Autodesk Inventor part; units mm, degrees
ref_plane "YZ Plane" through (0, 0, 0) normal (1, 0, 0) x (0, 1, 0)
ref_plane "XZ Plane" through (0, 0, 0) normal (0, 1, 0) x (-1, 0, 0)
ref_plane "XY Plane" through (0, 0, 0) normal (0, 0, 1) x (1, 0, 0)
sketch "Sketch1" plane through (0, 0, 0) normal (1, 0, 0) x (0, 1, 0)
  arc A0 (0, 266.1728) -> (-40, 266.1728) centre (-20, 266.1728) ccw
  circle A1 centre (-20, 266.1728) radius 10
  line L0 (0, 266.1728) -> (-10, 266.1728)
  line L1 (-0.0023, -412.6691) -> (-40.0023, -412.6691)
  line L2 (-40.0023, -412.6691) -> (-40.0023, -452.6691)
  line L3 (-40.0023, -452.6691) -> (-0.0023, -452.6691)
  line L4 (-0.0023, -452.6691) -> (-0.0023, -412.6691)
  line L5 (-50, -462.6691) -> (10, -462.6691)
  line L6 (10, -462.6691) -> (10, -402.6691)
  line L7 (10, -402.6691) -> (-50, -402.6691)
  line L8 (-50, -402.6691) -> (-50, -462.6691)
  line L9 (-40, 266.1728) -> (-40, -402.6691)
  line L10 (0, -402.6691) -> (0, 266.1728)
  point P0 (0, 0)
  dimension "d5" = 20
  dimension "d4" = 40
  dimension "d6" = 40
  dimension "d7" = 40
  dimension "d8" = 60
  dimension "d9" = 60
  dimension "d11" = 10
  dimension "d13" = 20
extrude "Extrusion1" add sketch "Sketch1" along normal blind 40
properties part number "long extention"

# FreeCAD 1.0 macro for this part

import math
import FreeCAD as App
import Part
import Sketcher
from FreeCAD import Vector

doc = App.newDocument("Part")
body = doc.addObject("PartDesign::Body", "Body")

# Sketch on YZ plane
sketch1 = body.newObject("Sketcher::SketchObject", "Sketch")
sketch1.AttachmentSupport = (doc.getObject("YZ_Plane"), [""])
sketch1.MapMode = "FlatFace"
sketch1.addGeometry(Part.LineSegment(Vector(0, -403, 0), Vector(0, 266, 0)), False)
sketch1.addGeometry(Part.ArcOfCircle(Part.Circle(Vector(-20, 266, 0), Vector(0, 0, 1), 20), math.radians(0), math.radians(180)), False)
sketch1.addGeometry(Part.LineSegment(Vector(-40, 266, 0), Vector(-40, -403, 0)), False)
sketch1.addGeometry(Part.LineSegment(Vector(-40, -403, 0), Vector(-50, -403, 0)), False)
sketch1.addGeometry(Part.LineSegment(Vector(-50, -403, 0), Vector(-50, -463, 0)), False)
sketch1.addGeometry(Part.LineSegment(Vector(-50, -463, 0), Vector(10, -463, 0)), False)
sketch1.addGeometry(Part.LineSegment(Vector(10, -463, 0), Vector(10, -403, 0)), False)
sketch1.addGeometry(Part.LineSegment(Vector(10, -403, 0), Vector(0, -403, 0)), False)
sketch1.addGeometry(Part.Circle(Vector(-20, 266, 0), Vector(0, 0, 1), 10), False)
sketch1.addGeometry(Part.LineSegment(Vector(0, -413, 0), Vector(0, -453, 0)), False)
sketch1.addGeometry(Part.LineSegment(Vector(0, -453, 0), Vector(-40, -453, 0)), False)
sketch1.addGeometry(Part.LineSegment(Vector(-40, -453, 0), Vector(-40, -413, 0)), False)
sketch1.addGeometry(Part.LineSegment(Vector(-40, -413, 0), Vector(0, -413, 0)), False)
sketch1.addConstraint(Sketcher.Constraint("Tangent", 0, 2, 1, 1))
sketch1.addConstraint(Sketcher.Constraint("Tangent", 1, 2, 2, 1))
sketch1.addConstraint(Sketcher.Constraint("Coincident", 2, 2, 3, 1))
sketch1.addConstraint(Sketcher.Constraint("Coincident", 3, 2, 4, 1))
sketch1.addConstraint(Sketcher.Constraint("Coincident", 4, 2, 5, 1))
sketch1.addConstraint(Sketcher.Constraint("Coincident", 5, 2, 6, 1))
sketch1.addConstraint(Sketcher.Constraint("Coincident", 6, 2, 7, 1))
sketch1.addConstraint(Sketcher.Constraint("Coincident", 7, 2, 0, 1))
sketch1.addConstraint(Sketcher.Constraint("Coincident", 9, 2, 10, 1))
sketch1.addConstraint(Sketcher.Constraint("Coincident", 10, 2, 11, 1))
sketch1.addConstraint(Sketcher.Constraint("Coincident", 11, 2, 12, 1))
sketch1.addConstraint(Sketcher.Constraint("Coincident", 12, 2, 9, 1))
sketch1.addConstraint(Sketcher.Constraint("Vertical", 0))
sketch1.addConstraint(Sketcher.Constraint("Vertical", 2))
sketch1.addConstraint(Sketcher.Constraint("Horizontal", 3))
sketch1.addConstraint(Sketcher.Constraint("Vertical", 4))
sketch1.addConstraint(Sketcher.Constraint("Horizontal", 5))
sketch1.addConstraint(Sketcher.Constraint("Vertical", 6))
sketch1.addConstraint(Sketcher.Constraint("Horizontal", 7))
sketch1.addConstraint(Sketcher.Constraint("Vertical", 9))
sketch1.addConstraint(Sketcher.Constraint("Horizontal", 10))
sketch1.addConstraint(Sketcher.Constraint("Vertical", 11))
sketch1.addConstraint(Sketcher.Constraint("Horizontal", 12))
sketch1.addConstraint(Sketcher.Constraint("Coincident", 8, 3, 1, 3))
sketch1.addConstraint(Sketcher.Constraint("PointOnObject", 0, 2, -2))
sketch1.addConstraint(Sketcher.Constraint("Horizontal", 3, 2, 6, 2))
sketch1.addConstraint(Sketcher.Constraint("Equal", 3, 7))
sketch1.addConstraint(Sketcher.Constraint("Equal", 5, 4))
sketch1.addConstraint(Sketcher.Constraint("Equal", 12, 9))
sketch1.addConstraint(Sketcher.Constraint("Diameter", 8, 20.0))
sketch1.addConstraint(Sketcher.Constraint("Radius", 1, 20.0))
sketch1.addConstraint(Sketcher.Constraint("DistanceX", 3, 2, 3, 1, 10.0))
sketch1.addConstraint(Sketcher.Constraint("DistanceX", 10, 2, 10, 1, 40.0))
sketch1.addConstraint(Sketcher.Constraint("DistanceY", 5, 2, 9, 2, 10.0))
sketch1.addConstraint(Sketcher.Constraint("DistanceY", 0, 1, 0, 2, 668.842))
sketch1.addConstraint(Sketcher.Constraint("DistanceY", 2, 2, -1, 1, 402.669))
sketch1.addConstraint(Sketcher.Constraint("DistanceX", 9, 2, -1, 1, 0.0023))
pad1 = body.newObject("PartDesign::Pad", "Pad")
pad1.Profile = sketch1
pad1.Length = 40

doc.recompute()
